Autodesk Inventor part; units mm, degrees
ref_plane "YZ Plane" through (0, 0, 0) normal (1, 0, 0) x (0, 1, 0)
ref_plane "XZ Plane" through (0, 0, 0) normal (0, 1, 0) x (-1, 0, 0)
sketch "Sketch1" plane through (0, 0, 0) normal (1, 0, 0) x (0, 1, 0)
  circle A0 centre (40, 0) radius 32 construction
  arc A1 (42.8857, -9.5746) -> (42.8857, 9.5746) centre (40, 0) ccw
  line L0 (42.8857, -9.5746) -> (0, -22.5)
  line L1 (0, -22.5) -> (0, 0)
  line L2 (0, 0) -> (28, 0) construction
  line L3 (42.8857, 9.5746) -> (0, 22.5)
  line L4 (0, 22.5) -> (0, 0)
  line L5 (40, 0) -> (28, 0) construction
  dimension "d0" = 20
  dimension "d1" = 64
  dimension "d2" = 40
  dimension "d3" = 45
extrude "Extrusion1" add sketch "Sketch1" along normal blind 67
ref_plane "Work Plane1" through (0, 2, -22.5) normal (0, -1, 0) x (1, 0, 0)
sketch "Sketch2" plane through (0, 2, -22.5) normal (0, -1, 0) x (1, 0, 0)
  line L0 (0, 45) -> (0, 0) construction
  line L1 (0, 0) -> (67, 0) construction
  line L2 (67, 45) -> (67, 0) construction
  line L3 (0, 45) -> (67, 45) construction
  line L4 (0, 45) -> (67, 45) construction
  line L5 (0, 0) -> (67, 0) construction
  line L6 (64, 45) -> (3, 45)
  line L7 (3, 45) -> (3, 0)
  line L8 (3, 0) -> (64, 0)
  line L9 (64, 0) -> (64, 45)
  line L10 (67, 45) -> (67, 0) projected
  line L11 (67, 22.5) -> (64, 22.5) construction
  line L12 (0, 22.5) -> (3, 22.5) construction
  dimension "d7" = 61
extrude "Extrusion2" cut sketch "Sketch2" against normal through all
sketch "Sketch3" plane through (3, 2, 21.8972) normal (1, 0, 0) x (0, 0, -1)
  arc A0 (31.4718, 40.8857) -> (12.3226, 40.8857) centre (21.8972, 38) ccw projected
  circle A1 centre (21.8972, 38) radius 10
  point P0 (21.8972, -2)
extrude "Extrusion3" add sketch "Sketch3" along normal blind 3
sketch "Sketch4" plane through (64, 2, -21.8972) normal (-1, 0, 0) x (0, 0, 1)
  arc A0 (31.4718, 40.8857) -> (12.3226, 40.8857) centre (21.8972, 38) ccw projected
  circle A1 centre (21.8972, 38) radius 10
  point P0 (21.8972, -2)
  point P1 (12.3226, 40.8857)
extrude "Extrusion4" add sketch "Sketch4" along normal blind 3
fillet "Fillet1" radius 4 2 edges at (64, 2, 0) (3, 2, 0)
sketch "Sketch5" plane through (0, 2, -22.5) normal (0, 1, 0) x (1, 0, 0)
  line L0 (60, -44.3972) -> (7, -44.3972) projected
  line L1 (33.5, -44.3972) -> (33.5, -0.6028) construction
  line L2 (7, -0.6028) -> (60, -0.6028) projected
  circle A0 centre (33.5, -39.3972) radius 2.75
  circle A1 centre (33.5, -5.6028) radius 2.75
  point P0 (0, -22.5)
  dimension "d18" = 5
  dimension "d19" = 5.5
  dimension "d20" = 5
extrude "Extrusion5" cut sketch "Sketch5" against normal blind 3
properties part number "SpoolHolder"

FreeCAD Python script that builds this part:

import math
import FreeCAD as App
import Part
import Sketcher
from FreeCAD import Vector
Q = App.Units.Quantity


def edges_at(feature, points):
    """Names of the edges that pass closest to the given points."""
    edges = feature.Shape.Edges
    near = lambda p: min(range(len(edges)), key=lambda i: edges[i].distToShape(Part.Vertex(*p))[0])
    return sorted({f"Edge{near(p) + 1}" for p in points})

doc = App.newDocument("Part")
body = doc.addObject("PartDesign::Body", "Body")

# Sketch on YZ plane
sketch1 = doc.addObject("Sketcher::SketchObject", "Sketch")
body.addObject(sketch1)
sketch1.AttachmentSupport = (doc.YZ_Plane, [""])
sketch1.MapMode = "FlatFace"
sketch1.addGeometry(Part.LineSegment(Vector(0, -22, 0), Vector(43, -10, 0)), False)
sketch1.addGeometry(Part.ArcOfCircle(Part.Circle(Vector(40, 0, 0), Vector(0, 0, 1), 10), math.radians(-73), math.radians(73)), False)
sketch1.addGeometry(Part.LineSegment(Vector(43, 10, 0), Vector(0, 22, 0)), False)
sketch1.addGeometry(Part.LineSegment(Vector(0, 22, 0), Vector(0, -22, 0)), False)
sketch1.addConstraint(Sketcher.Constraint("Tangent", 0, 2, 1, 1))
sketch1.addConstraint(Sketcher.Constraint("Tangent", 1, 2, 2, 1))
sketch1.addConstraint(Sketcher.Constraint("Coincident", 2, 2, 3, 1))
sketch1.addConstraint(Sketcher.Constraint("Coincident", 3, 2, 0, 1))
sketch1.addConstraint(Sketcher.Constraint("Vertical", 3))
sketch1.addConstraint(Sketcher.Constraint("Symmetric", 2, 2, 3, 2, -1, 1))
sketch1.addConstraint(Sketcher.Constraint("PointOnObject", 1, 3, -1))
sketch1.addConstraint(Sketcher.Constraint("Radius", 1, Q("10 mm")))
sketch1.addConstraint(Sketcher.Constraint("DistanceY", 3, 2, 3, 1, Q("45 mm")))
sketch1.addConstraint(Sketcher.Constraint("DistanceX", -1, 1, 1, 3, Q("40 mm")))
pad1 = doc.addObject("PartDesign::Pad", "Pad")
body.addObject(pad1)
pad1.Profile = sketch1
pad1.Length = 67

# Sketch on XZ plane
sketch2 = doc.addObject("Sketcher::SketchObject", "Sketch001")
body.addObject(sketch2)
sketch2.AttachmentSupport = (doc.XZ_Plane, [""])
sketch2.MapMode = "FlatFace"
sketch2.AttachmentOffset = App.Placement(Vector(0, 0, -2), App.Rotation())
sketch2.addGeometry(Part.LineSegment(Vector(64, -22, 0), Vector(64, 22, 0)), False)
sketch2.addGeometry(Part.LineSegment(Vector(64, 22, 0), Vector(3, 22, 0)), False)
sketch2.addGeometry(Part.LineSegment(Vector(3, 22, 0), Vector(3, -22, 0)), False)
sketch2.addGeometry(Part.LineSegment(Vector(3, -22, 0), Vector(64, -22, 0)), False)
sketch2.addConstraint(Sketcher.Constraint("Coincident", 0, 2, 1, 1))
sketch2.addConstraint(Sketcher.Constraint("Coincident", 1, 2, 2, 1))
sketch2.addConstraint(Sketcher.Constraint("Coincident", 2, 2, 3, 1))
sketch2.addConstraint(Sketcher.Constraint("Coincident", 3, 2, 0, 1))
sketch2.addConstraint(Sketcher.Constraint("Vertical", 0))
sketch2.addConstraint(Sketcher.Constraint("Horizontal", 1))
sketch2.addConstraint(Sketcher.Constraint("Vertical", 2))
sketch2.addConstraint(Sketcher.Constraint("Horizontal", 3))
sketch2.addConstraint(Sketcher.Constraint("DistanceX", 1, 2, 1, 1, Q("61 mm")))
sketch2.addConstraint(Sketcher.Constraint("DistanceY", 0, 1, 0, 2, Q("45 mm")))
sketch2.addConstraint(Sketcher.Constraint("DistanceX", -1, 1, 0, 2, Q("64 mm")))
sketch2.addConstraint(Sketcher.Constraint("DistanceY", -1, 1, 0, 2, Q("22.5 mm")))
pocket1 = doc.addObject("PartDesign::Pocket", "Pocket")
body.addObject(pocket1)
pocket1.Profile = sketch2
pocket1.Type = "ThroughAll"

# Sketch on YZ plane
sketch3 = doc.addObject("Sketcher::SketchObject", "Sketch002")
body.addObject(sketch3)
sketch3.AttachmentSupport = (doc.YZ_Plane, [""])
sketch3.MapMode = "FlatFace"
sketch3.AttachmentOffset = App.Placement(Vector(0, 0, 3), App.Rotation())
sketch3.addGeometry(Part.Circle(Vector(40, 0, 0), Vector(0, 0, 1), 10), False)
sketch3.addConstraint(Sketcher.Constraint("PointOnObject", 0, 3, -1))
sketch3.addConstraint(Sketcher.Constraint("Diameter", 0, Q("20 mm")))
sketch3.addConstraint(Sketcher.Constraint("DistanceX", -1, 1, 0, 3, Q("40 mm")))
pad2 = doc.addObject("PartDesign::Pad", "Pad001")
body.addObject(pad2)
pad2.Profile = sketch3
pad2.Length = 3

# Sketch on YZ plane
sketch4 = doc.addObject("Sketcher::SketchObject", "Sketch003")
body.addObject(sketch4)
sketch4.AttachmentSupport = (doc.YZ_Plane, [""])
sketch4.MapMode = "FlatFace"
sketch4.AttachmentOffset = App.Placement(Vector(0, 0, 64), App.Rotation())
sketch4.addGeometry(Part.Circle(Vector(40, 0, 0), Vector(0, 0, 1), 10), False)
sketch4.addConstraint(Sketcher.Constraint("PointOnObject", 0, 3, -1))
sketch4.addConstraint(Sketcher.Constraint("Diameter", 0, Q("20 mm")))
sketch4.addConstraint(Sketcher.Constraint("DistanceX", -1, 1, 0, 3, Q("40 mm")))
pad3 = doc.addObject("PartDesign::Pad", "Pad002")
body.addObject(pad3)
pad3.Profile = sketch4
pad3.Length = 3
pad3.Reversed = True
doc.recompute()

fillet = doc.addObject("PartDesign::Fillet", "Fillet")
body.addObject(fillet)
fillet.Base = (pad3, edges_at(pad3, [(64, 2, 0), (3, 2, 0)]))
fillet.Radius = 4

# Sketch on XZ plane
sketch5 = doc.addObject("Sketcher::SketchObject", "Sketch004")
body.addObject(sketch5)
sketch5.AttachmentSupport = (doc.XZ_Plane, [""])
sketch5.MapMode = "FlatFace"
sketch5.AttachmentOffset = App.Placement(Vector(0, 0, -2), App.Rotation())
sketch5.addGeometry(Part.Circle(Vector(33.5, 16.9, 0), Vector(0, 0, 1), 2.8), False)
sketch5.addGeometry(Part.Circle(Vector(33.5, -16.9, 0), Vector(0, 0, 1), 2.8), False)
sketch5.addConstraint(Sketcher.Constraint("Equal", 0, 1))
sketch5.addConstraint(Sketcher.Constraint("Symmetric", 0, 3, 1, 3, -1))
sketch5.addConstraint(Sketcher.Constraint("Diameter", 0, Q("5.5 mm")))
sketch5.addConstraint(Sketcher.Constraint("DistanceX", -1, 1, 0, 3, Q("33.5 mm")))
sketch5.addConstraint(Sketcher.Constraint("DistanceY", -1, 1, 0, 3, Q("16.8972 mm")))
pocket2 = doc.addObject("PartDesign::Pocket", "Pocket001")
body.addObject(pocket2)
pocket2.Profile = sketch5
pocket2.Length = 3
pocket2.Reversed = True

doc.recompute()
